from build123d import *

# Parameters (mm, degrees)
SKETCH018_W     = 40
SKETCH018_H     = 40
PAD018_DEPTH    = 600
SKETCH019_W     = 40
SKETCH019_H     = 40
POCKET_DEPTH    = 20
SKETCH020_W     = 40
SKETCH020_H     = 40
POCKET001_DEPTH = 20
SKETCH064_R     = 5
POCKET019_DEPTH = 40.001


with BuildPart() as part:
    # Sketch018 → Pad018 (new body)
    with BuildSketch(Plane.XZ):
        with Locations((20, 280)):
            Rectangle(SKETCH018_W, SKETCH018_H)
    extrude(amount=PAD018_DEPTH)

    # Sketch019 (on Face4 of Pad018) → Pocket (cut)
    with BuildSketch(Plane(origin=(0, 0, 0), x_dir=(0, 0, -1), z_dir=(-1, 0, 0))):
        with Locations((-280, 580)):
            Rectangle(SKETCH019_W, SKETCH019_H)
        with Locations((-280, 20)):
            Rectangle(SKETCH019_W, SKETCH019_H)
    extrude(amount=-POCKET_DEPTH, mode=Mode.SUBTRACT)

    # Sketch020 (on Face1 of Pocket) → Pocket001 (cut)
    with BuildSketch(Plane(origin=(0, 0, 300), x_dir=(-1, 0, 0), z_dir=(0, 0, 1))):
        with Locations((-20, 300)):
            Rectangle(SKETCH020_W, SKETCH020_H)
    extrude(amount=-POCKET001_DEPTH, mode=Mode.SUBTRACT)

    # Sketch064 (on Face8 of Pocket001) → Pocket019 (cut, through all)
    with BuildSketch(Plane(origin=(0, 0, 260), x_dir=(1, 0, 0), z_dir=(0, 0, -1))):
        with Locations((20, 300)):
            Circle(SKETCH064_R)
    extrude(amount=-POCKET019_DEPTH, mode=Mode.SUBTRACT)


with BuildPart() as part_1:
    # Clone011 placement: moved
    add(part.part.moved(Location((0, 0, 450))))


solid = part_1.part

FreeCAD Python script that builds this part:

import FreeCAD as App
import Part
import Sketcher

V = App.Vector

doc = App.newDocument("Part")
body = doc.addObject("PartDesign::Body", "Body")

# Sketch on XZ plane
sketch1 = body.newObject("Sketcher::SketchObject", "Sketch")
sketch1.AttachmentSupport = (doc.getObject("XZ_Plane"), [""])
sketch1.MapMode = "FlatFace"
sketch1.addGeometry(Part.LineSegment(V(0, 300, 0), V(0, 260, 0)), False)
sketch1.addGeometry(Part.LineSegment(V(0, 260, 0), V(40, 260, 0)), False)
sketch1.addGeometry(Part.LineSegment(V(40, 260, 0), V(40, 300, 0)), False)
sketch1.addGeometry(Part.LineSegment(V(40, 300, 0), V(0, 300, 0)), False)
sketch1.addConstraint(Sketcher.Constraint("Coincident", 0, 2, 1, 1))
sketch1.addConstraint(Sketcher.Constraint("Coincident", 1, 2, 2, 1))
sketch1.addConstraint(Sketcher.Constraint("Coincident", 2, 2, 3, 1))
sketch1.addConstraint(Sketcher.Constraint("Coincident", 3, 2, 0, 1))
sketch1.addConstraint(Sketcher.Constraint("Vertical", 0))
sketch1.addConstraint(Sketcher.Constraint("Horizontal", 1))
sketch1.addConstraint(Sketcher.Constraint("Vertical", 2))
sketch1.addConstraint(Sketcher.Constraint("Horizontal", 3))
sketch1.addConstraint(Sketcher.Constraint("PointOnObject", 0, 2, -2))
sketch1.addConstraint(Sketcher.Constraint("Equal", 3, 0))
sketch1.addConstraint(Sketcher.Constraint("DistanceX", 1, 1, 1, 2, 40.0))
sketch1.addConstraint(Sketcher.Constraint("DistanceY", -1, 1, 0, 2, 260.0))
pad1 = body.newObject("PartDesign::Pad", "Pad")
pad1.Profile = sketch1
pad1.Length = 600

# Sketch on YZ plane
sketch2 = body.newObject("Sketcher::SketchObject", "Sketch001")
sketch2.AttachmentSupport = (doc.getObject("YZ_Plane"), [""])
sketch2.MapMode = "FlatFace"
sketch2.addGeometry(Part.LineSegment(V(-600, 300, 0), V(-560, 300, 0)), False)
sketch2.addGeometry(Part.LineSegment(V(-560, 300, 0), V(-560, 260, 0)), False)
sketch2.addGeometry(Part.LineSegment(V(-560, 260, 0), V(-600, 260, 0)), False)
sketch2.addGeometry(Part.LineSegment(V(-600, 260, 0), V(-600, 300, 0)), False)
sketch2.addGeometry(Part.LineSegment(V(-40, 300, 0), V(0, 300, 0)), False)
sketch2.addGeometry(Part.LineSegment(V(0, 300, 0), V(0, 260, 0)), False)
sketch2.addGeometry(Part.LineSegment(V(0, 260, 0), V(-40, 260, 0)), False)
sketch2.addGeometry(Part.LineSegment(V(-40, 260, 0), V(-40, 300, 0)), False)
sketch2.addConstraint(Sketcher.Constraint("Coincident", 0, 2, 1, 1))
sketch2.addConstraint(Sketcher.Constraint("Coincident", 1, 2, 2, 1))
sketch2.addConstraint(Sketcher.Constraint("Coincident", 2, 2, 3, 1))
sketch2.addConstraint(Sketcher.Constraint("Coincident", 3, 2, 0, 1))
sketch2.addConstraint(Sketcher.Constraint("Coincident", 4, 2, 5, 1))
sketch2.addConstraint(Sketcher.Constraint("Coincident", 5, 2, 6, 1))
sketch2.addConstraint(Sketcher.Constraint("Coincident", 6, 2, 7, 1))
sketch2.addConstraint(Sketcher.Constraint("Coincident", 7, 2, 4, 1))
sketch2.addConstraint(Sketcher.Constraint("Horizontal", 0))
sketch2.addConstraint(Sketcher.Constraint("Vertical", 1))
sketch2.addConstraint(Sketcher.Constraint("Horizontal", 2))
sketch2.addConstraint(Sketcher.Constraint("Vertical", 3))
sketch2.addConstraint(Sketcher.Constraint("Horizontal", 4))
sketch2.addConstraint(Sketcher.Constraint("Vertical", 5))
sketch2.addConstraint(Sketcher.Constraint("Horizontal", 6))
sketch2.addConstraint(Sketcher.Constraint("Vertical", 7))
sketch2.addConstraint(Sketcher.Constraint("PointOnObject", 4, 2, -2))
sketch2.addConstraint(Sketcher.Constraint("Horizontal", 3, 2, 4, 2))
sketch2.addConstraint(Sketcher.Constraint("Horizontal", 2, 2, 5, 2))
sketch2.addConstraint(Sketcher.Constraint("Equal", 2, 4))
sketch2.addConstraint(Sketcher.Constraint("Equal", 6, 1))
sketch2.addConstraint(Sketcher.Constraint("DistanceX", 0, 1, 0, 2, 40.0))
sketch2.addConstraint(Sketcher.Constraint("DistanceX", 0, 2, -1, 1, 560.0))
sketch2.addConstraint(Sketcher.Constraint("DistanceY", -1, 1, 0, 2, 300.0))
pocket1 = body.newObject("PartDesign::Pocket", "Pocket")
pocket1.Profile = sketch2
pocket1.Length = 20
pocket1.Reversed = True

# Sketch on XY plane
sketch3 = body.newObject("Sketcher::SketchObject", "Sketch002")
sketch3.AttachmentSupport = (doc.getObject("XY_Plane"), [""])
sketch3.MapMode = "FlatFace"
sketch3.AttachmentOffset = App.Placement(V(0, 0, 300), App.Rotation())
sketch3.addGeometry(Part.LineSegment(V(40, -320, 0), V(40, -280, 0)), False)
sketch3.addGeometry(Part.LineSegment(V(40, -280, 0), V(0, -280, 0)), False)
sketch3.addGeometry(Part.LineSegment(V(0, -280, 0), V(0, -320, 0)), False)
sketch3.addGeometry(Part.LineSegment(V(0, -320, 0), V(40, -320, 0)), False)
sketch3.addConstraint(Sketcher.Constraint("Coincident", 0, 2, 1, 1))
sketch3.addConstraint(Sketcher.Constraint("Coincident", 1, 2, 2, 1))
sketch3.addConstraint(Sketcher.Constraint("Coincident", 2, 2, 3, 1))
sketch3.addConstraint(Sketcher.Constraint("Coincident", 3, 2, 0, 1))
sketch3.addConstraint(Sketcher.Constraint("Vertical", 0))
sketch3.addConstraint(Sketcher.Constraint("Horizontal", 1))
sketch3.addConstraint(Sketcher.Constraint("Vertical", 2))
sketch3.addConstraint(Sketcher.Constraint("Horizontal", 3))
sketch3.addConstraint(Sketcher.Constraint("PointOnObject", 1, 2, -2))
sketch3.addConstraint(Sketcher.Constraint("Equal", 3, 0))
sketch3.addConstraint(Sketcher.Constraint("DistanceX", 1, 2, 1, 1, 40.0))
sketch3.addConstraint(Sketcher.Constraint("DistanceY", 0, 2, -1, 1, 280.0))
pocket2 = body.newObject("PartDesign::Pocket", "Pocket001")
pocket2.Profile = sketch3
pocket2.Length = 20

# Sketch on XY plane
sketch4 = body.newObject("Sketcher::SketchObject", "Sketch003")
sketch4.AttachmentSupport = (doc.getObject("XY_Plane"), [""])
sketch4.MapMode = "FlatFace"
sketch4.AttachmentOffset = App.Placement(V(0, 0, 260), App.Rotation())
sketch4.addGeometry(Part.Circle(V(20, -300, 0), V(0, 0, 1), 5), False)
sketch4.addConstraint(Sketcher.Constraint("Diameter", 0, 10.0))
sketch4.addConstraint(Sketcher.Constraint("DistanceX", -1, 1, 0, 3, 20.0))
sketch4.addConstraint(Sketcher.Constraint("DistanceY", 0, 3, -1, 1, 300.0))
pocket3 = body.newObject("PartDesign::Pocket", "Pocket002")
pocket3.Profile = sketch4
pocket3.Type = "ThroughAll"
pocket3.Reversed = True
body2 = doc.addObject("PartDesign::Body", "Body001")
doc.recompute()

body.Placement = App.Placement(V(0, 0, 450), App.Rotation(V(0, 0, 1), 0))
boolean = body2.newObject("PartDesign::Boolean", "Boolean")
boolean.Type = "Fuse"
boolean.addObjects([body])

doc.recompute()
